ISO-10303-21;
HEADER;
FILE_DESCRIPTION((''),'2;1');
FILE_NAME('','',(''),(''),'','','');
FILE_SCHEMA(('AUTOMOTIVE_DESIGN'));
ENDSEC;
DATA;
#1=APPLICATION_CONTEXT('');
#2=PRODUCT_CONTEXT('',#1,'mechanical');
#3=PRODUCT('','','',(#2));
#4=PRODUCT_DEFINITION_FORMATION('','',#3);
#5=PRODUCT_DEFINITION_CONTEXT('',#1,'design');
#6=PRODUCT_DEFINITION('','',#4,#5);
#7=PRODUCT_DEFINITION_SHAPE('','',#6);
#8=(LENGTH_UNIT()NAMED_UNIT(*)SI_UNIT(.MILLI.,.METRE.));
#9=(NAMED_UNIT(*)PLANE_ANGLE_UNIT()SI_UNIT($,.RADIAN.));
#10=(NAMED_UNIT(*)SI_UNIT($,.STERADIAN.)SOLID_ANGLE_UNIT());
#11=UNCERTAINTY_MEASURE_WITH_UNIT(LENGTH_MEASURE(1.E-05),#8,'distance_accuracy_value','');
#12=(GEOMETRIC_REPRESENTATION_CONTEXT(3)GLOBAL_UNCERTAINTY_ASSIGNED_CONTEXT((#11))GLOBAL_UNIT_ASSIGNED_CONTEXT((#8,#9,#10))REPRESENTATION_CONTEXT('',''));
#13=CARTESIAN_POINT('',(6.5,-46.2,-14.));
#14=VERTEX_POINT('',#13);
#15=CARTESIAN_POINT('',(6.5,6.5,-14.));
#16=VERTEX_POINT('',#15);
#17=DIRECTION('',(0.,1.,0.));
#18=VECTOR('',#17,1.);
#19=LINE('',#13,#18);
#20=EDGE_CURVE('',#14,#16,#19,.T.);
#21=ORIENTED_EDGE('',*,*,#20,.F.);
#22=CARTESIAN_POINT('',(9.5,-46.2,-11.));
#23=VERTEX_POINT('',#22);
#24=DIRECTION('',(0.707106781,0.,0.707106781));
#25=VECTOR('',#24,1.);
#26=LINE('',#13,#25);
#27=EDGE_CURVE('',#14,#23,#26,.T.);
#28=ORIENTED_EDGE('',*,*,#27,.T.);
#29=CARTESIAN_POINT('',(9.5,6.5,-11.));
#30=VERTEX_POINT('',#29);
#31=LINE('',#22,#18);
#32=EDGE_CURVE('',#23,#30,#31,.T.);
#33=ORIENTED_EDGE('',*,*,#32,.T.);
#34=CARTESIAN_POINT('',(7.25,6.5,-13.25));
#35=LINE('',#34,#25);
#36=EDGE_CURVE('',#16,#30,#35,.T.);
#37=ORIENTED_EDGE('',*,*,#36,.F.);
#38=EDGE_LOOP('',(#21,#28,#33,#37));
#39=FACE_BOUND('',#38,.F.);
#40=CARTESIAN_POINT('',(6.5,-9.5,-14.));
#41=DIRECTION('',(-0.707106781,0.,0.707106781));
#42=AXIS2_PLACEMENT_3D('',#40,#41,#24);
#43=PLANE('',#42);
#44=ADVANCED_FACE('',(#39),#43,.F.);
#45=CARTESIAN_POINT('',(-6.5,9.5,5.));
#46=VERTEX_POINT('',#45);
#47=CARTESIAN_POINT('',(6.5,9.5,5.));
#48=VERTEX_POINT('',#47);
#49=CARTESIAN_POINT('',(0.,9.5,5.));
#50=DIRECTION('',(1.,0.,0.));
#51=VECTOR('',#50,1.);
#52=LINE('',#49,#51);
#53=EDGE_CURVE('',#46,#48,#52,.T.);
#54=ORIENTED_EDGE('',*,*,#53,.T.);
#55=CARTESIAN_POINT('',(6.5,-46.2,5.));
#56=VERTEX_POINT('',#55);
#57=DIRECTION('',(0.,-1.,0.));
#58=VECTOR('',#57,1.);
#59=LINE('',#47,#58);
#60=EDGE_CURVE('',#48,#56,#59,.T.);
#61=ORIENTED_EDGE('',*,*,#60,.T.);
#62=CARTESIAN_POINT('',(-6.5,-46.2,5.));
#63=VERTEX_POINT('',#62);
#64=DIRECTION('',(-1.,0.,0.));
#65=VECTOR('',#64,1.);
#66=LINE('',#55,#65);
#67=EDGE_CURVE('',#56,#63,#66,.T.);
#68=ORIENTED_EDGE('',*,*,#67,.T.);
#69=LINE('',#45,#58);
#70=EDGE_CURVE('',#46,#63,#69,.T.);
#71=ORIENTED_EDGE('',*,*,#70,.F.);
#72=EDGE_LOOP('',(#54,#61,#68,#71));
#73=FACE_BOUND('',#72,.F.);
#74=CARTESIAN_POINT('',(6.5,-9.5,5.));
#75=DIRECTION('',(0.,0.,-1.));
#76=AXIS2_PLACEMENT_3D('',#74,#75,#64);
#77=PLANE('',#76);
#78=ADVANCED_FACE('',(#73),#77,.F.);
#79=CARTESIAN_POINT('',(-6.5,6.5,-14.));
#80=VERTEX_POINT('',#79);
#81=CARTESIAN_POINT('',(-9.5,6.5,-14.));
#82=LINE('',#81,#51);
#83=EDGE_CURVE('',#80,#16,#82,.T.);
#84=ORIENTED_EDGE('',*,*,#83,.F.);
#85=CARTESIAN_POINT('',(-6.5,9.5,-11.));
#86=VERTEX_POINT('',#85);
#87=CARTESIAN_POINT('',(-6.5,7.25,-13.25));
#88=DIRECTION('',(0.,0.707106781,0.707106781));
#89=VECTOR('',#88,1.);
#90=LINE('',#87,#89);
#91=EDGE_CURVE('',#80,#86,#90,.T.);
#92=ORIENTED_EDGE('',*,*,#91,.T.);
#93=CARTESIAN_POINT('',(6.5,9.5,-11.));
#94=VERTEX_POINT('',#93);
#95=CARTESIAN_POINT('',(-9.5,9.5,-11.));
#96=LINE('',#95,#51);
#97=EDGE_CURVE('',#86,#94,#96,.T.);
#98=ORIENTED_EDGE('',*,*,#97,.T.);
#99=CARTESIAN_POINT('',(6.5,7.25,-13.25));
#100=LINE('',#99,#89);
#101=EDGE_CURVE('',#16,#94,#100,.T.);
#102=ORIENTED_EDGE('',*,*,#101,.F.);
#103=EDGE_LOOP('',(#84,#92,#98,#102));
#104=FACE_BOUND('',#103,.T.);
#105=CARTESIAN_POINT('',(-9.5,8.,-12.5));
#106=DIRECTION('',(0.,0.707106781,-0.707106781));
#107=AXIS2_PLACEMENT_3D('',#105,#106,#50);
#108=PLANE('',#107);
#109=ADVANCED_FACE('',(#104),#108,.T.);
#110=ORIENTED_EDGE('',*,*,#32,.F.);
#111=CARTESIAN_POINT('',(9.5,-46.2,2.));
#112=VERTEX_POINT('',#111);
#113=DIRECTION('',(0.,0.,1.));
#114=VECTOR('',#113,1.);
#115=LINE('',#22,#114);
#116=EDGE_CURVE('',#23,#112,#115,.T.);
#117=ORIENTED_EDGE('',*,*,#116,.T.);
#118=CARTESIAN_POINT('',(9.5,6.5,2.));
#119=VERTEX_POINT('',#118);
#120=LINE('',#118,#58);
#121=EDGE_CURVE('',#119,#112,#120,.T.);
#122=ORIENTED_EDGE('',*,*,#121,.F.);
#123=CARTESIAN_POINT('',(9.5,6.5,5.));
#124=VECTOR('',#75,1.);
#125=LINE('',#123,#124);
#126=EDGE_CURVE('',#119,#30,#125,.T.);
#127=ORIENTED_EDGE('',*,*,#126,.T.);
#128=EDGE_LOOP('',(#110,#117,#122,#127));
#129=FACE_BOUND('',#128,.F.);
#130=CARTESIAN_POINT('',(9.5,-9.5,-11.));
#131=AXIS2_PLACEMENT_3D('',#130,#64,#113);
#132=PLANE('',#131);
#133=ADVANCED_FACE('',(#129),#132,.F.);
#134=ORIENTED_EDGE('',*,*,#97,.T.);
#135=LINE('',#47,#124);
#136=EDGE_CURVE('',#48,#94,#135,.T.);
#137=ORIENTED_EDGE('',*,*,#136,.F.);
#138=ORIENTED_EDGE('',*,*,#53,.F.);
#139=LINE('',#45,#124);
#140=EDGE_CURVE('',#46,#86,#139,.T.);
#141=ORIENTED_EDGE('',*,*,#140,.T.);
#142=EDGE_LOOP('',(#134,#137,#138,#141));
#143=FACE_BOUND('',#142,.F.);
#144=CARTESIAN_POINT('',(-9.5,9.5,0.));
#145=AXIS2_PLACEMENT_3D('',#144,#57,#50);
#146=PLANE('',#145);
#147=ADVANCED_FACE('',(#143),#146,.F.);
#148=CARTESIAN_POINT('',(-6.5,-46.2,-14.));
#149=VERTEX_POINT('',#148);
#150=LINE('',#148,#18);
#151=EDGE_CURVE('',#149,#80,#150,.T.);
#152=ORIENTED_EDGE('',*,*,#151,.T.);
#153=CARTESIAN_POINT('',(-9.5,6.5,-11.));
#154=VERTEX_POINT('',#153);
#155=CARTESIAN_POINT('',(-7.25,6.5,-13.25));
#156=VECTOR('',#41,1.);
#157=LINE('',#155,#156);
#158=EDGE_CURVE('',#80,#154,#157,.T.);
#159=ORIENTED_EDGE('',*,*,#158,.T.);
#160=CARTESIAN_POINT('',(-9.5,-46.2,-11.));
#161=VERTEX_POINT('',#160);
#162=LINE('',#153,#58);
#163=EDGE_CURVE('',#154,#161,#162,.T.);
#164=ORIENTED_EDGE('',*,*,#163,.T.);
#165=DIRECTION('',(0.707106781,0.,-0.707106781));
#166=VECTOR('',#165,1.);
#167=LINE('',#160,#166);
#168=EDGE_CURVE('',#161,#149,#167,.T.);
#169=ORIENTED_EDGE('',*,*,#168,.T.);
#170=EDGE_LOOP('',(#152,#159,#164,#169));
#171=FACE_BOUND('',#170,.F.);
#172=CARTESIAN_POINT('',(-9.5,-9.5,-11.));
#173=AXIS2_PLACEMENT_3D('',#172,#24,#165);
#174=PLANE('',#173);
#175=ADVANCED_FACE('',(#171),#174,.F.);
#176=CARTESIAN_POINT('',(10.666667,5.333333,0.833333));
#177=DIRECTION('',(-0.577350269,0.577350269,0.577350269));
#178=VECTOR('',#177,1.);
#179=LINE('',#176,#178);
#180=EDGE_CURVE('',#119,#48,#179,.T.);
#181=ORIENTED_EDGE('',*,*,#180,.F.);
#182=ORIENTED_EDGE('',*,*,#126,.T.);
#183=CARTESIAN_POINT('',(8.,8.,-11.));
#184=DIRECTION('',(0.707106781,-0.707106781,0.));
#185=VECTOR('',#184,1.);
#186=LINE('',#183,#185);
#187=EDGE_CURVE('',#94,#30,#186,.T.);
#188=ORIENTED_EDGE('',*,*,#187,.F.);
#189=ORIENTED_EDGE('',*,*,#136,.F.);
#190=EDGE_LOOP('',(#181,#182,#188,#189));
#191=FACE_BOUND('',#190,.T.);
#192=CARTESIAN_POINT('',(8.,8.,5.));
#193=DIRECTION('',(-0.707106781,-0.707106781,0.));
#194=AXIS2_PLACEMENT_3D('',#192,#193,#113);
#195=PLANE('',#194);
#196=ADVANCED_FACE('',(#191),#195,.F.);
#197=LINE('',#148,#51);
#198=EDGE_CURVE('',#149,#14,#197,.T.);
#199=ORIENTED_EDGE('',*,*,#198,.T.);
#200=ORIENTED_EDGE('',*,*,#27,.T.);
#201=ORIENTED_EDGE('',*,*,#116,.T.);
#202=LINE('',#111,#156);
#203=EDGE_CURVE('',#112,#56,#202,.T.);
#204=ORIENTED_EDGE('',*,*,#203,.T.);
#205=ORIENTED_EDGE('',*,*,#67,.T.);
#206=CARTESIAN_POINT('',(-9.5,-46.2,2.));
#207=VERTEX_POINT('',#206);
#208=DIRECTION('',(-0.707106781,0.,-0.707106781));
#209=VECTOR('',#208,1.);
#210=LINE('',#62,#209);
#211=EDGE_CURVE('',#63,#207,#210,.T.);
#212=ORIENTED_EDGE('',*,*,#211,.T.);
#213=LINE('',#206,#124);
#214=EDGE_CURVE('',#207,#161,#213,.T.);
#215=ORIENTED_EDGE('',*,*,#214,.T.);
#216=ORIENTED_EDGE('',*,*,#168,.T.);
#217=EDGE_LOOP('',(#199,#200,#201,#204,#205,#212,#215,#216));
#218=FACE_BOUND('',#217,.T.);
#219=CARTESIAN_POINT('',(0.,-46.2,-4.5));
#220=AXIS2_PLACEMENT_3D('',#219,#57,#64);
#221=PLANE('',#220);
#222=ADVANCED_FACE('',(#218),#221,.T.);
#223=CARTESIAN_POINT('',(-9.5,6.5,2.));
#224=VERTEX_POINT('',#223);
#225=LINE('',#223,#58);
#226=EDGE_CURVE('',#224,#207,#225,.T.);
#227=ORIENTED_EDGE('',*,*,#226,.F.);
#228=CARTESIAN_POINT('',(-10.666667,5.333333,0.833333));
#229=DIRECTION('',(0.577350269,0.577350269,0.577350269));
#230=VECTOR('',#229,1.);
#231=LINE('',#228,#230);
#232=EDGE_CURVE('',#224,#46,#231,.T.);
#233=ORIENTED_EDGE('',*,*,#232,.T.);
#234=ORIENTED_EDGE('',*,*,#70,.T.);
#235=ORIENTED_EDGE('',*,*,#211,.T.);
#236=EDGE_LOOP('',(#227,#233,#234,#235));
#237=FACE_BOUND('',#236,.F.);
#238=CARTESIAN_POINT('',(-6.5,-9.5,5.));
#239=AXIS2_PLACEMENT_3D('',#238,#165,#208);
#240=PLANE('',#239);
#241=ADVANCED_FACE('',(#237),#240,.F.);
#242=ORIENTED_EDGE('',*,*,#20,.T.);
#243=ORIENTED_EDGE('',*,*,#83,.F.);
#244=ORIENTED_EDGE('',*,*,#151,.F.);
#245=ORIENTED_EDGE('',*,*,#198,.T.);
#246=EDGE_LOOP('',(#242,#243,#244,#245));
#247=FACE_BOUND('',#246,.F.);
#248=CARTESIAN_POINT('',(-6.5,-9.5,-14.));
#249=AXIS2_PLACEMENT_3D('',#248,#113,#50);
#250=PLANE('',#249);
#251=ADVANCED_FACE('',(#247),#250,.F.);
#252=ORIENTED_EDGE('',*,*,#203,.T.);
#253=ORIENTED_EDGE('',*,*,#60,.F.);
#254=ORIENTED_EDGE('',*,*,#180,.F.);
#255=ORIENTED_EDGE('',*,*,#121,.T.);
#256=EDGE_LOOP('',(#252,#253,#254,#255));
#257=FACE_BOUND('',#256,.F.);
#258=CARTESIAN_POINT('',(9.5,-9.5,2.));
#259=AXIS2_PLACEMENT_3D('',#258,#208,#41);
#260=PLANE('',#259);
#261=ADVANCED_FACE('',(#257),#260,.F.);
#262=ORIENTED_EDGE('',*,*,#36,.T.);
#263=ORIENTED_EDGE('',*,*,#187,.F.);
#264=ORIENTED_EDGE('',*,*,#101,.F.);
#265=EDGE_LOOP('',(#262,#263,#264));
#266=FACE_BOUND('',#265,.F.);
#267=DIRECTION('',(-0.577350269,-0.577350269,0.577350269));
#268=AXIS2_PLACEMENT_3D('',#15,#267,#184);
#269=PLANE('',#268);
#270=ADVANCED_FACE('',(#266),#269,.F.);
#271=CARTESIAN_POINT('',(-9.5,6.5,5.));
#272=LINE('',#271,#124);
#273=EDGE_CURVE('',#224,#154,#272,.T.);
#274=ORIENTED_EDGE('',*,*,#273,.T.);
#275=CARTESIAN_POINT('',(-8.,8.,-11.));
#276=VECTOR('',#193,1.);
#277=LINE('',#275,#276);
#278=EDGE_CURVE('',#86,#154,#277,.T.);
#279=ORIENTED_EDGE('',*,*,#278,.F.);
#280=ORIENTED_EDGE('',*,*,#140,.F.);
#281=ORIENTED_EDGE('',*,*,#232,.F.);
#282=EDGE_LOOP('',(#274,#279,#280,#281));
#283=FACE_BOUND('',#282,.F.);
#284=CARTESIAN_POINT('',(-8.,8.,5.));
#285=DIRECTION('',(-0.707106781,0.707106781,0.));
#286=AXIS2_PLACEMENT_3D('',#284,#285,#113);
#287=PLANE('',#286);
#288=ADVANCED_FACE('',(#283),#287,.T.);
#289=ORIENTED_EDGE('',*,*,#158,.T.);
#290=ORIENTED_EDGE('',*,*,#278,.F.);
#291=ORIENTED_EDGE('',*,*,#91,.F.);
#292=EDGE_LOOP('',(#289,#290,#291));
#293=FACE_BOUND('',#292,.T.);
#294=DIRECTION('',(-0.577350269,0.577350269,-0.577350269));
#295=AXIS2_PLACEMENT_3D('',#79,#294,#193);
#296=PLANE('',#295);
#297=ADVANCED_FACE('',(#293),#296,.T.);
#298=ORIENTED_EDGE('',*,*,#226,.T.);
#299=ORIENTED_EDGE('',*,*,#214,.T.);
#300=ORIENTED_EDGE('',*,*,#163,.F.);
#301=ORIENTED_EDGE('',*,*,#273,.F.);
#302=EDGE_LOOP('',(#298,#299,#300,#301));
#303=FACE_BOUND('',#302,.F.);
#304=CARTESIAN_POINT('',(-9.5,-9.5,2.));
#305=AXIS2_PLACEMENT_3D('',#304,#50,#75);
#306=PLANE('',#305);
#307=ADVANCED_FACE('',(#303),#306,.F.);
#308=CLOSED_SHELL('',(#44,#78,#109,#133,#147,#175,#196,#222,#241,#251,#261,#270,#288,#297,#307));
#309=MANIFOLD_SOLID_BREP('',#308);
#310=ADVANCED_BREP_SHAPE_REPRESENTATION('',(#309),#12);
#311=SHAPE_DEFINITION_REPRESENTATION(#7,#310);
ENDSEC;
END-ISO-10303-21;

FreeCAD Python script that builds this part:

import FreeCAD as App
import Part
import Sketcher


def edges_at(feature, points):
    """Names of the edges that pass closest to the given points."""
    edges = feature.Shape.Edges
    near = lambda p: min(range(len(edges)), key=lambda i: edges[i].distToShape(Part.Vertex(*p))[0])
    return sorted({f"Edge{near(p) + 1}" for p in points})

doc = App.newDocument("Part")
params = doc.addObject("Spreadsheet::Sheet", "Params")
for row, (alias, value) in enumerate([
    ("sketch1_width", "19 mm"),
    ("pad1_length", "5 mm"),
    ("pad1_length2", "14 mm"),
    ("chamfer_size", "3 mm"),
    ("sketch2_width", "13 mm"),
    ("pad2_length", "36.7 mm"),
], start=1):
    params.set(f"A{row}", alias)
    params.set(f"B{row}", "=" + value)
    params.setAlias(f"B{row}", alias)

body = doc.addObject("PartDesign::Body", "Body")

sketch1 = body.newObject("Sketcher::SketchObject", "Sketch")
sketch1.AttachmentSupport = (doc.getObject("XY_Plane"), [""])
sketch1.MapMode = "FlatFace"
sketch1.addGeometry(Part.LineSegment(App.Vector(-10, 10, 0), App.Vector(-10, -10, 0)), False)
sketch1.addGeometry(Part.LineSegment(App.Vector(-10, -10, 0), App.Vector(10, -10, 0)), False)
sketch1.addGeometry(Part.LineSegment(App.Vector(10, -10, 0), App.Vector(10, 10, 0)), False)
sketch1.addGeometry(Part.LineSegment(App.Vector(10, 10, 0), App.Vector(-10, 10, 0)), False)
sketch1.addConstraint(Sketcher.Constraint("Coincident", 0, 2, 1, 1))
sketch1.addConstraint(Sketcher.Constraint("Coincident", 1, 2, 2, 1))
sketch1.addConstraint(Sketcher.Constraint("Coincident", 2, 2, 3, 1))
sketch1.addConstraint(Sketcher.Constraint("Coincident", 3, 2, 0, 1))
sketch1.addConstraint(Sketcher.Constraint("Vertical", 0))
sketch1.addConstraint(Sketcher.Constraint("Horizontal", 1))
sketch1.addConstraint(Sketcher.Constraint("Vertical", 2))
sketch1.addConstraint(Sketcher.Constraint("Horizontal", 3))
sketch1.addConstraint(Sketcher.Constraint("Symmetric", 0, 2, 2, 2, -1, 1))
sketch1.addConstraint(Sketcher.Constraint("Equal", 3, 0))
sketch1.addConstraint(Sketcher.Constraint("DistanceX", 1, 1, 1, 2, 19.0))
sketch1.setExpression("Constraints[10]", "Params.sketch1_width")
pad1 = body.newObject("PartDesign::Pad", "Pad")
pad1.Profile = sketch1
pad1.Type = "TwoLengths"
pad1.setExpression("Length", "Params.pad1_length")
pad1.setExpression("Length2", "Params.pad1_length2")
doc.recompute()

chamfer = body.newObject("PartDesign::Chamfer", "Chamfer")
chamfer.Base = (pad1, edges_at(pad1, [
    (9.5, 9.5, -4.5),
    (-9.5, 9.5, -4.5),
    (0, 9.5, -14),
    (-9.5, 0, -14),
    (9.5, 0, -14),
    (-9.5, 0, 5),
    (9.5, 0, 5),
]))
chamfer.setExpression("Size", "Params.chamfer_size")

sketch2 = body.newObject("Sketcher::SketchObject", "Sketch001")
sketch2.AttachmentSupport = (doc.getObject("XZ_Plane"), [""])
sketch2.MapMode = "FlatFace"
sketch2.AttachmentOffset = App.Placement(App.Vector(0, 0, 9.5), App.Rotation())
sketch2.addGeometry(Part.LineSegment(App.Vector(9.5, -11, 0), App.Vector(9.5, 2, 0)), False)
sketch2.addGeometry(Part.LineSegment(App.Vector(9.5, 2, 0), App.Vector(6.5, 5, 0)), False)
sketch2.addGeometry(Part.LineSegment(App.Vector(6.5, 5, 0), App.Vector(-6.5, 5, 0)), False)
sketch2.addGeometry(Part.LineSegment(App.Vector(-6.5, 5, 0), App.Vector(-9.5, 2, 0)), False)
sketch2.addGeometry(Part.LineSegment(App.Vector(-9.5, 2, 0), App.Vector(-9.5, -11, 0)), False)
sketch2.addGeometry(Part.LineSegment(App.Vector(-9.5, -11, 0), App.Vector(-6.5, -14, 0)), False)
sketch2.addGeometry(Part.LineSegment(App.Vector(-6.5, -14, 0), App.Vector(6.5, -14, 0)), False)
sketch2.addGeometry(Part.LineSegment(App.Vector(6.5, -14, 0), App.Vector(9.5, -11, 0)), False)
sketch2.addConstraint(Sketcher.Constraint("Coincident", 0, 2, 1, 1))
sketch2.addConstraint(Sketcher.Constraint("Coincident", 1, 2, 2, 1))
sketch2.addConstraint(Sketcher.Constraint("Coincident", 2, 2, 3, 1))
sketch2.addConstraint(Sketcher.Constraint("Coincident", 3, 2, 4, 1))
sketch2.addConstraint(Sketcher.Constraint("Coincident", 4, 2, 5, 1))
sketch2.addConstraint(Sketcher.Constraint("Coincident", 5, 2, 6, 1))
sketch2.addConstraint(Sketcher.Constraint("Coincident", 6, 2, 7, 1))
sketch2.addConstraint(Sketcher.Constraint("Coincident", 7, 2, 0, 1))
sketch2.addConstraint(Sketcher.Constraint("Vertical", 0))
sketch2.addConstraint(Sketcher.Constraint("Horizontal", 2))
sketch2.addConstraint(Sketcher.Constraint("Vertical", 4))
sketch2.addConstraint(Sketcher.Constraint("Horizontal", 6))
sketch2.addConstraint(Sketcher.Constraint("Symmetric", 0, 2, 3, 2, -2))
sketch2.addConstraint(Sketcher.Constraint("Perpendicular", 1, 3))
sketch2.addConstraint(Sketcher.Constraint("Perpendicular", 3, 5))
sketch2.addConstraint(Sketcher.Constraint("Perpendicular", 5, 7))
sketch2.addConstraint(Sketcher.Constraint("Horizontal", 4, 2, 7, 2))
sketch2.addConstraint(Sketcher.Constraint("Vertical", 2, 2, 5, 2))
sketch2.addConstraint(Sketcher.Constraint("Vertical", 1, 2, 6, 2))
sketch2.addConstraint(Sketcher.Constraint("Equal", 6, 0))
sketch2.addConstraint(Sketcher.Constraint("DistanceX", 2, 2, 2, 1, 13.0))
sketch2.addConstraint(Sketcher.Constraint("DistanceY", -1, 1, 0, 2, 2.0))
sketch2.addConstraint(Sketcher.Constraint("DistanceY", -1, 1, 1, 2, 5.0))
sketch2.setExpression("Constraints[20]", "Params.sketch2_width")
pad2 = body.newObject("PartDesign::Pad", "Pad001")
pad2.Profile = sketch2
pad2.setExpression("Length", "Params.pad2_length")

doc.recompute()
